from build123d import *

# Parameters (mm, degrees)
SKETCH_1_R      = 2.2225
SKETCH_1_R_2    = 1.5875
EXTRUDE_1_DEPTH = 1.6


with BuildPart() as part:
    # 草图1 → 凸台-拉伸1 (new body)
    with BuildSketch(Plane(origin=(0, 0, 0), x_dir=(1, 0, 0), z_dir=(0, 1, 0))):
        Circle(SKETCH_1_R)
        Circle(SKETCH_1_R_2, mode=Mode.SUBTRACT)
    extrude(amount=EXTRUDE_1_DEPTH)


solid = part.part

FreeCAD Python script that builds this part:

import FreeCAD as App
import Part
import Sketcher

V = App.Vector
Q = App.Units.Quantity

doc = App.newDocument("Part")
params = doc.addObject("Spreadsheet::Sheet", "Params")
for row, (alias, value) in enumerate([
    ("sketch1_diameter", "0.175 in"),
    ("sketch1_diameter2", "0.125 in"),
    ("pad1_length", "1.6 mm"),
], start=1):
    params.set(f"A{row}", alias)
    params.set(f"B{row}", "=" + value)
    params.setAlias(f"B{row}", alias)

body = doc.addObject("PartDesign::Body", "Body")

# Sketch on XZ plane
sketch1 = body.newObject("Sketcher::SketchObject", "Sketch")
sketch1.AttachmentSupport = (doc.getObject("XZ_Plane"), [""])
sketch1.MapMode = "FlatFace"
sketch1.addGeometry(Part.Circle(V(0, 0, 0), V(0, 0, 1), 2.2), False)
sketch1.addGeometry(Part.Circle(V(0, 0, 0), V(0, 0, 1), 1.6), False)
sketch1.addConstraint(Sketcher.Constraint("Coincident", 0, 3, -1, 1))
sketch1.addConstraint(Sketcher.Constraint("Coincident", 1, 3, -1, 1))
sketch1.addConstraint(Sketcher.Constraint("Diameter", 0, Q("0.175 in")))
sketch1.addConstraint(Sketcher.Constraint("Diameter", 1, Q("0.125 in")))
sketch1.setExpression("Constraints[2]", "Params.sketch1_diameter")
sketch1.setExpression("Constraints[3]", "Params.sketch1_diameter2")
pad1 = body.newObject("PartDesign::Pad", "Pad")
pad1.Profile = sketch1
pad1.setExpression("Length", "Params.pad1_length")
pad1.Reversed = True

doc.recompute()
